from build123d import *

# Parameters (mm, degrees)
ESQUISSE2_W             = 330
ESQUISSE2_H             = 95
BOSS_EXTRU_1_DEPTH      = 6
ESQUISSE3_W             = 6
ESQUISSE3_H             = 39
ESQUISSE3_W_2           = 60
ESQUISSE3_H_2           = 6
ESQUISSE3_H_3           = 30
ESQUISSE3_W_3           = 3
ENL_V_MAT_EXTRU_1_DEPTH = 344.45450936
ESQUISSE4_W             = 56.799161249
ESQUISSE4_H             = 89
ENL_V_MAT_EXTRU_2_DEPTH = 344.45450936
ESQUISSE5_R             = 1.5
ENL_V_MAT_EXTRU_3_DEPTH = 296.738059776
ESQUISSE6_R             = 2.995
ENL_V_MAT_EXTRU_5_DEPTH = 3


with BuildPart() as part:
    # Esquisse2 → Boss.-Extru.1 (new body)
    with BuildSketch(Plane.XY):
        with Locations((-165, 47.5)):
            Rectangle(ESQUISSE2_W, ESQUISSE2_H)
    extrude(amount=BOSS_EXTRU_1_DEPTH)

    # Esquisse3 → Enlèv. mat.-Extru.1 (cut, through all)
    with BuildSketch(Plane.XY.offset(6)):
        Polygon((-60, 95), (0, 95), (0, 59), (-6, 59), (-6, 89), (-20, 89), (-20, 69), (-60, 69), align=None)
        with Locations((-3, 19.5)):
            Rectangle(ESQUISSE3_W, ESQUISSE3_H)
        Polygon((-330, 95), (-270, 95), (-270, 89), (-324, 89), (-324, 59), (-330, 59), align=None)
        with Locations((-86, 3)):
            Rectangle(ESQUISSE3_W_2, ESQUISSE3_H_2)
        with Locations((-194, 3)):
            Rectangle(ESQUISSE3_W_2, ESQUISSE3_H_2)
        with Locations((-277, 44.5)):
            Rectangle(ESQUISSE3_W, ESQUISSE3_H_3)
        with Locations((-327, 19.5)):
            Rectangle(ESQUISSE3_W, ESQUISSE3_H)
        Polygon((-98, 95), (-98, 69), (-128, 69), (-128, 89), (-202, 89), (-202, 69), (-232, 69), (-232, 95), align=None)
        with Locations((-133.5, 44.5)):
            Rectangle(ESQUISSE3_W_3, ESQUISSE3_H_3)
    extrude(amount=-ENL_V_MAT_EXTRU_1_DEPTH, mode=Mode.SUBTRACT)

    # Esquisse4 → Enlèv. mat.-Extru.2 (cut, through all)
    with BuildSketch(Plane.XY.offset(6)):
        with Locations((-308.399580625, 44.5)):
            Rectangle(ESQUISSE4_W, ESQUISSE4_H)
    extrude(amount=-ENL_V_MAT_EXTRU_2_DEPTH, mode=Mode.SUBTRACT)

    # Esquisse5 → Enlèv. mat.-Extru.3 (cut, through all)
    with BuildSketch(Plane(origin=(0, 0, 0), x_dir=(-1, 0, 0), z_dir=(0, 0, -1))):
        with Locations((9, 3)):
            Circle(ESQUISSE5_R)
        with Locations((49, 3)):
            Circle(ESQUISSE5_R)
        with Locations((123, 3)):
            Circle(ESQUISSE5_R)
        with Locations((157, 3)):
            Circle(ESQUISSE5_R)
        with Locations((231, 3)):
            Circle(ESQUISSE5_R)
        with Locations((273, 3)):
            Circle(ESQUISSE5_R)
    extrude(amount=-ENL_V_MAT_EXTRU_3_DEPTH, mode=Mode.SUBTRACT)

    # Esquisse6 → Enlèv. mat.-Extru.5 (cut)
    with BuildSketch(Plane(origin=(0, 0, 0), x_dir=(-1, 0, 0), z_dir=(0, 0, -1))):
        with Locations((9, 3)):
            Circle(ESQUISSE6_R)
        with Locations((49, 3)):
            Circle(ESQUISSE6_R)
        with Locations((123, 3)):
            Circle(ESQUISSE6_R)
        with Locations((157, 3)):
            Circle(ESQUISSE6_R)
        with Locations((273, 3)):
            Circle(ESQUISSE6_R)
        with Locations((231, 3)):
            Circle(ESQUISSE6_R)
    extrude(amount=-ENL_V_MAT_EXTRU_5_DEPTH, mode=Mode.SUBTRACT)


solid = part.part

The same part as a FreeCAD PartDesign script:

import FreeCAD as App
import Part
import Sketcher

V = App.Vector
Q = App.Units.Quantity

doc = App.newDocument("Part")
body = doc.addObject("PartDesign::Body", "Body")

# Sketch on XY plane
sketch1 = body.newObject("Sketcher::SketchObject", "Sketch")
sketch1.AttachmentSupport = (doc.getObject("XY_Plane"), [""])
sketch1.MapMode = "FlatFace"
sketch1.addGeometry([
    Part.LineSegment(V(-330, 95, 0), V(-330, 0, 0)),
    Part.LineSegment(V(-330, 0, 0), V(0, 0, 0)),
    Part.LineSegment(V(0, 0, 0), V(0, 95, 0)),
    Part.LineSegment(V(0, 95, 0), V(-330, 95, 0)),
], False)
sketch1.addConstraint([
    Sketcher.Constraint("Coincident", 0, 2, 1, 1),
    Sketcher.Constraint("Coincident", 1, 2, 2, 1),
    Sketcher.Constraint("Coincident", 2, 2, 3, 1),
    Sketcher.Constraint("Coincident", 3, 2, 0, 1),
    Sketcher.Constraint("Vertical", 0),
    Sketcher.Constraint("Horizontal", 1),
    Sketcher.Constraint("Vertical", 2),
    Sketcher.Constraint("Horizontal", 3),
    Sketcher.Constraint("Coincident", 1, 2, -1, 1),
    Sketcher.Constraint("DistanceX", 1, 1, 1, 2, Q("330 mm")),
    Sketcher.Constraint("DistanceY", 0, 2, 0, 1, Q("95 mm")),
])
pad1 = body.newObject("PartDesign::Pad", "Pad")
pad1.Profile = sketch1
pad1.Length = 6

# Sketch on XY plane
sketch2 = body.newObject("Sketcher::SketchObject", "Sketch001")
sketch2.AttachmentSupport = (doc.getObject("XY_Plane"), [""])
sketch2.MapMode = "FlatFace"
sketch2.AttachmentOffset = App.Placement(V(0, 0, 6), App.Rotation())
sketch2.addGeometry([
    Part.LineSegment(V(0, 95, 0), V(-60, 95, 0)),  # 0
    Part.LineSegment(V(-60, 95, 0), V(-60, 69, 0)),  # 1
    Part.LineSegment(V(-60, 69, 0), V(-20, 69, 0)),  # 2
    Part.LineSegment(V(-20, 69, 0), V(-20, 89, 0)),  # 3
    Part.LineSegment(V(-20, 89, 0), V(-6, 89, 0)),  # 4
    Part.LineSegment(V(-6, 89, 0), V(-6, 59, 0)),  # 5
    Part.LineSegment(V(-6, 59, 0), V(0, 59, 0)),  # 6
    Part.LineSegment(V(0, 59, 0), V(0, 95, 0)),  # 7
    Part.LineSegment(V(-6, 39, 0), V(-6, 0, 0)),  # 8
    Part.LineSegment(V(-6, 0, 0), V(0, 0, 0)),  # 9
    Part.LineSegment(V(0, 0, 0), V(0, 39, 0)),  # 10
    Part.LineSegment(V(0, 39, 0), V(-6, 39, 0)),  # 11
    Part.LineSegment(V(-270, 95, 0), V(-330, 95, 0)),  # 12
    Part.LineSegment(V(-330, 95, 0), V(-330, 59, 0)),  # 13
    Part.LineSegment(V(-330, 59, 0), V(-324, 59, 0)),  # 14
    Part.LineSegment(V(-324, 59, 0), V(-324, 89, 0)),  # 15
    Part.LineSegment(V(-324, 89, 0), V(-270, 89, 0)),  # 16
    Part.LineSegment(V(-270, 89, 0), V(-270, 95, 0)),  # 17
    Part.LineSegment(V(-116, 6, 0), V(-116, 0, 0)),  # 18
    Part.LineSegment(V(-116, 0, 0), V(-56, 0, 0)),  # 19
    Part.LineSegment(V(-56, 0, 0), V(-56, 6, 0)),  # 20
    Part.LineSegment(V(-56, 6, 0), V(-116, 6, 0)),  # 21
    Part.LineSegment(V(-224, 6, 0), V(-224, 0, 0)),  # 22
    Part.LineSegment(V(-224, 0, 0), V(-164, 0, 0)),  # 23
    Part.LineSegment(V(-164, 0, 0), V(-164, 6, 0)),  # 24
    Part.LineSegment(V(-164, 6, 0), V(-224, 6, 0)),  # 25
    Part.LineSegment(V(-280, 59.5, 0), V(-280, 29.5, 0)),  # 26
    Part.LineSegment(V(-280, 29.5, 0), V(-274, 29.5, 0)),  # 27
    Part.LineSegment(V(-274, 29.5, 0), V(-274, 59.5, 0)),  # 28
    Part.LineSegment(V(-274, 59.5, 0), V(-280, 59.5, 0)),  # 29
    Part.LineSegment(V(-330, 39, 0), V(-330, 0, 0)),  # 30
    Part.LineSegment(V(-330, 0, 0), V(-324, 0, 0)),  # 31
    Part.LineSegment(V(-324, 0, 0), V(-324, 39, 0)),  # 32
    Part.LineSegment(V(-324, 39, 0), V(-330, 39, 0)),  # 33
    Part.LineSegment(V(-98, 69, 0), V(-98, 95, 0)),  # 34
    Part.LineSegment(V(-98, 95, 0), V(-232, 95, 0)),  # 35
    Part.LineSegment(V(-232, 95, 0), V(-232, 69, 0)),  # 36
    Part.LineSegment(V(-232, 69, 0), V(-202, 69, 0)),  # 37
    Part.LineSegment(V(-202, 69, 0), V(-202, 89, 0)),  # 38
    Part.LineSegment(V(-202, 89, 0), V(-128, 89, 0)),  # 39
    Part.LineSegment(V(-128, 89, 0), V(-128, 69, 0)),  # 40
    Part.LineSegment(V(-128, 69, 0), V(-98, 69, 0)),  # 41
    Part.LineSegment(V(-135, 59.5, 0), V(-135, 29.5, 0)),  # 42
    Part.LineSegment(V(-135, 29.5, 0), V(-132, 29.5, 0)),  # 43
    Part.LineSegment(V(-132, 29.5, 0), V(-132, 59.5, 0)),  # 44
    Part.LineSegment(V(-132, 59.5, 0), V(-135, 59.5, 0)),  # 45
], False)
sketch2.addConstraint([
    Sketcher.Constraint("Coincident", 0, 2, 1, 1),
    Sketcher.Constraint("Coincident", 1, 2, 2, 1),
    Sketcher.Constraint("Coincident", 2, 2, 3, 1),
    Sketcher.Constraint("Coincident", 3, 2, 4, 1),
    Sketcher.Constraint("Coincident", 4, 2, 5, 1),
    Sketcher.Constraint("Coincident", 5, 2, 6, 1),
    Sketcher.Constraint("Coincident", 6, 2, 7, 1),
    Sketcher.Constraint("Coincident", 7, 2, 0, 1),
    Sketcher.Constraint("Coincident", 8, 2, 9, 1),
    Sketcher.Constraint("Coincident", 9, 2, 10, 1),
    Sketcher.Constraint("Coincident", 10, 2, 11, 1),
    Sketcher.Constraint("Coincident", 11, 2, 8, 1),
    Sketcher.Constraint("Coincident", 12, 2, 13, 1),
    Sketcher.Constraint("Coincident", 13, 2, 14, 1),
    Sketcher.Constraint("Coincident", 14, 2, 15, 1),
    Sketcher.Constraint("Coincident", 15, 2, 16, 1),
    Sketcher.Constraint("Coincident", 16, 2, 17, 1),
    Sketcher.Constraint("Coincident", 17, 2, 12, 1),
    Sketcher.Constraint("Coincident", 18, 2, 19, 1),
    Sketcher.Constraint("Coincident", 19, 2, 20, 1),
    Sketcher.Constraint("Coincident", 20, 2, 21, 1),
    Sketcher.Constraint("Coincident", 21, 2, 18, 1),
    Sketcher.Constraint("Coincident", 22, 2, 23, 1),
    Sketcher.Constraint("Coincident", 23, 2, 24, 1),
    Sketcher.Constraint("Coincident", 24, 2, 25, 1),
    Sketcher.Constraint("Coincident", 25, 2, 22, 1),
    Sketcher.Constraint("Coincident", 26, 2, 27, 1),
    Sketcher.Constraint("Coincident", 27, 2, 28, 1),
    Sketcher.Constraint("Coincident", 28, 2, 29, 1),
    Sketcher.Constraint("Coincident", 29, 2, 26, 1),
    Sketcher.Constraint("Coincident", 30, 2, 31, 1),
    Sketcher.Constraint("Coincident", 31, 2, 32, 1),
    Sketcher.Constraint("Coincident", 32, 2, 33, 1),
    Sketcher.Constraint("Coincident", 33, 2, 30, 1),
    Sketcher.Constraint("Coincident", 34, 2, 35, 1),
    Sketcher.Constraint("Coincident", 35, 2, 36, 1),
    Sketcher.Constraint("Coincident", 36, 2, 37, 1),
    Sketcher.Constraint("Coincident", 37, 2, 38, 1),
    Sketcher.Constraint("Coincident", 38, 2, 39, 1),
    Sketcher.Constraint("Coincident", 39, 2, 40, 1),
    Sketcher.Constraint("Coincident", 40, 2, 41, 1),
    Sketcher.Constraint("Coincident", 41, 2, 34, 1),
    Sketcher.Constraint("Coincident", 42, 2, 43, 1),
    Sketcher.Constraint("Coincident", 43, 2, 44, 1),
    Sketcher.Constraint("Coincident", 44, 2, 45, 1),
    Sketcher.Constraint("Coincident", 45, 2, 42, 1),
    Sketcher.Constraint("Horizontal", 0),
    Sketcher.Constraint("Vertical", 1),
    Sketcher.Constraint("Horizontal", 2),
    Sketcher.Constraint("Vertical", 3),
    Sketcher.Constraint("Horizontal", 4),
    Sketcher.Constraint("Vertical", 5),
    Sketcher.Constraint("Horizontal", 6),
    Sketcher.Constraint("Vertical", 7),
    Sketcher.Constraint("Vertical", 8),
    Sketcher.Constraint("Horizontal", 9),
    Sketcher.Constraint("Vertical", 10),
    Sketcher.Constraint("Horizontal", 11),
    Sketcher.Constraint("Horizontal", 12),
    Sketcher.Constraint("Vertical", 13),
    Sketcher.Constraint("Horizontal", 14),
    Sketcher.Constraint("Vertical", 15),
    Sketcher.Constraint("Horizontal", 16),
    Sketcher.Constraint("Vertical", 17),
    Sketcher.Constraint("Vertical", 18),
    Sketcher.Constraint("Horizontal", 19),
    Sketcher.Constraint("Vertical", 20),
    Sketcher.Constraint("Horizontal", 21),
    Sketcher.Constraint("Vertical", 22),
    Sketcher.Constraint("Horizontal", 23),
    Sketcher.Constraint("Vertical", 24),
    Sketcher.Constraint("Horizontal", 25),
    Sketcher.Constraint("Vertical", 26),
    Sketcher.Constraint("Horizontal", 27),
    Sketcher.Constraint("Vertical", 28),
    Sketcher.Constraint("Horizontal", 29),
    Sketcher.Constraint("Vertical", 30),
    Sketcher.Constraint("Horizontal", 31),
    Sketcher.Constraint("Vertical", 32),
    Sketcher.Constraint("Horizontal", 33),
    Sketcher.Constraint("Vertical", 34),
    Sketcher.Constraint("Horizontal", 35),
    Sketcher.Constraint("Vertical", 36),
    Sketcher.Constraint("Horizontal", 37),
    Sketcher.Constraint("Vertical", 38),
    Sketcher.Constraint("Horizontal", 39),
    Sketcher.Constraint("Vertical", 40),
    Sketcher.Constraint("Horizontal", 41),
    Sketcher.Constraint("Vertical", 42),
    Sketcher.Constraint("Horizontal", 43),
    Sketcher.Constraint("Vertical", 44),
    Sketcher.Constraint("Horizontal", 45),
    Sketcher.Constraint("Coincident", 9, 2, -1, 1),
    Sketcher.Constraint("PointOnObject", 6, 2, -2),
    Sketcher.Constraint("PointOnObject", 18, 2, -1),
    Sketcher.Constraint("PointOnObject", 22, 2, -1),
    Sketcher.Constraint("PointOnObject", 30, 2, -1),
    Sketcher.Constraint("Horizontal", 7, 2, 12, 2),
    Sketcher.Constraint("Horizontal", 6, 2, 13, 2),
    Sketcher.Constraint("Horizontal", 4, 2, 15, 2),
    Sketcher.Constraint("Horizontal", 21, 2, 24, 2),
    Sketcher.Constraint("Horizontal", 11, 2, 32, 2),
    Sketcher.Constraint("Horizontal", 17, 2, 34, 2),
    Sketcher.Constraint("Horizontal", 2, 2, 36, 2),
    Sketcher.Constraint("Horizontal", 16, 2, 38, 2),
    Sketcher.Constraint("Horizontal", 37, 2, 40, 2),
    Sketcher.Constraint("Horizontal", 27, 2, 42, 2),
    Sketcher.Constraint("Horizontal", 29, 2, 44, 2),
    Sketcher.Constraint("Vertical", 5, 2, 8, 2),
    Sketcher.Constraint("Vertical", 13, 2, 30, 2),
    Sketcher.Constraint("Vertical", 15, 2, 31, 2),
    Sketcher.Constraint("Equal", 0, 12),
    Sketcher.Constraint("Equal", 11, 14),
    Sketcher.Constraint("Equal", 12, 19),
    Sketcher.Constraint("Equal", 21, 23),
    Sketcher.Constraint("Equal", 14, 27),
    Sketcher.Constraint("Equal", 37, 41),
    Sketcher.Constraint("Equal", 41, 5),
    Sketcher.Constraint("Equal", 33, 17),
    Sketcher.Constraint("Equal", 17, 18),
    Sketcher.Constraint("Equal", 15, 26),
    Sketcher.Constraint("DistanceX", 0, 2, 0, 1, Q("60 mm")),
    Sketcher.Constraint("DistanceX", 2, 1, 2, 2, Q("40 mm")),
    Sketcher.Constraint("DistanceX", 4, 1, 4, 2, Q("14 mm")),
    Sketcher.Constraint("DistanceX", 35, 2, 35, 1, Q("134 mm")),
    Sketcher.Constraint("DistanceX", 37, 1, 37, 2, Q("30 mm")),
    Sketcher.Constraint("DistanceX", 43, 1, 43, 2, Q("3 mm")),
    Sketcher.Constraint("DistanceY", 1, 2, 1, 1, Q("26 mm")),
    Sketcher.Constraint("DistanceY", 8, 2, 8, 1, Q("39 mm")),
    Sketcher.Constraint("DistanceY", -1, 1, 0, 2, Q("95 mm")),
    Sketcher.Constraint("DistanceX", 12, 2, -1, 1, Q("330 mm")),
    Sketcher.Constraint("DistanceX", 18, 2, -1, 1, Q("116 mm")),
    Sketcher.Constraint("DistanceX", 22, 2, -1, 1, Q("224 mm")),
    Sketcher.Constraint("DistanceX", 26, 2, -1, 1, Q("280 mm")),
    Sketcher.Constraint("DistanceX", 34, 2, -1, 1, Q("98 mm")),
    Sketcher.Constraint("DistanceX", 42, 2, -1, 1, Q("135 mm")),
    Sketcher.Constraint("DistanceY", -1, 1, 26, 2, Q("29.5 mm")),
])
pocket1 = body.newObject("PartDesign::Pocket", "Pocket")
pocket1.Profile = sketch2
pocket1.Type = "ThroughAll"

# Sketch on XY plane
sketch3 = body.newObject("Sketcher::SketchObject", "Sketch002")
sketch3.AttachmentSupport = (doc.getObject("XY_Plane"), [""])
sketch3.MapMode = "FlatFace"
sketch3.AttachmentOffset = App.Placement(V(0, 0, 6), App.Rotation())
sketch3.addGeometry([
    Part.LineSegment(V(-336.799161, 89, 0), V(-336.799161, 0, 0)),
    Part.LineSegment(V(-336.799161, 0, 0), V(-280, 0, 0)),
    Part.LineSegment(V(-280, 0, 0), V(-280, 89, 0)),
    Part.LineSegment(V(-280, 89, 0), V(-336.799161, 89, 0)),
], False)
sketch3.addConstraint([
    Sketcher.Constraint("Coincident", 0, 2, 1, 1),
    Sketcher.Constraint("Coincident", 1, 2, 2, 1),
    Sketcher.Constraint("Coincident", 2, 2, 3, 1),
    Sketcher.Constraint("Coincident", 3, 2, 0, 1),
    Sketcher.Constraint("Vertical", 0),
    Sketcher.Constraint("Horizontal", 1),
    Sketcher.Constraint("Vertical", 2),
    Sketcher.Constraint("Horizontal", 3),
    Sketcher.Constraint("PointOnObject", 0, 2, -1),
    Sketcher.Constraint("DistanceY", 0, 2, 0, 1, Q("89 mm")),
    Sketcher.Constraint("DistanceX", 1, 2, -1, 1, Q("280 mm")),
    Sketcher.Constraint("DistanceX", 1, 1, 1, 2, Q("56.799161 mm")),
])
pocket2 = body.newObject("PartDesign::Pocket", "Pocket001")
pocket2.Profile = sketch3
pocket2.Type = "ThroughAll"

# Sketch on XY plane
sketch4 = body.newObject("Sketcher::SketchObject", "Sketch003")
sketch4.AttachmentSupport = (doc.getObject("XY_Plane"), [""])
sketch4.MapMode = "FlatFace"
sketch4.addGeometry([
    Part.Circle(V(-9, 3, 0), V(0, 0, 1), 1.5),  # 0
    Part.Circle(V(-49, 3, 0), V(0, 0, 1), 1.5),  # 1
    Part.Circle(V(-123, 3, 0), V(0, 0, 1), 1.5),  # 2
    Part.Circle(V(-157, 3, 0), V(0, 0, 1), 1.5),  # 3
    Part.Circle(V(-231, 3, 0), V(0, 0, 1), 1.5),  # 4
    Part.Circle(V(-273, 3, 0), V(0, 0, 1), 1.5),  # 5
], False)
sketch4.addConstraint([
    Sketcher.Constraint("Equal", 0, 1),
    Sketcher.Constraint("Equal", 1, 2),
    Sketcher.Constraint("Equal", 2, 3),
    Sketcher.Constraint("Equal", 3, 4),
    Sketcher.Constraint("Equal", 4, 5),
    Sketcher.Constraint("Horizontal", 0, 3, 1, 3),
    Sketcher.Constraint("Horizontal", 1, 3, 2, 3),
    Sketcher.Constraint("Horizontal", 2, 3, 3, 3),
    Sketcher.Constraint("Horizontal", 3, 3, 4, 3),
    Sketcher.Constraint("Horizontal", 4, 3, 5, 3),
    Sketcher.Constraint("Diameter", 0, Q("3 mm")),
    Sketcher.Constraint("DistanceX", 0, 3, -1, 1, Q("9 mm")),
    Sketcher.Constraint("DistanceY", -1, 1, 0, 3, Q("3 mm")),
    Sketcher.Constraint("DistanceX", 1, 3, -1, 1, Q("49 mm")),
    Sketcher.Constraint("DistanceX", 2, 3, -1, 1, Q("123 mm")),
    Sketcher.Constraint("DistanceX", 3, 3, -1, 1, Q("157 mm")),
    Sketcher.Constraint("DistanceX", 4, 3, -1, 1, Q("231 mm")),
    Sketcher.Constraint("DistanceX", 5, 3, -1, 1, Q("273 mm")),
])
pocket3 = body.newObject("PartDesign::Pocket", "Pocket002")
pocket3.Profile = sketch4
pocket3.Type = "ThroughAll"
pocket3.Reversed = True

# Sketch on XY plane
sketch5 = body.newObject("Sketcher::SketchObject", "Sketch004")
sketch5.AttachmentSupport = (doc.getObject("XY_Plane"), [""])
sketch5.MapMode = "FlatFace"
sketch5.addGeometry([
    Part.Circle(V(-9, 3, 0), V(0, 0, 1), 2.995),  # 0
    Part.Circle(V(-49, 3, 0), V(0, 0, 1), 2.995),  # 1
    Part.Circle(V(-123, 3, 0), V(0, 0, 1), 2.995),  # 2
    Part.Circle(V(-157, 3, 0), V(0, 0, 1), 2.995),  # 3
    Part.Circle(V(-273, 3, 0), V(0, 0, 1), 2.995),  # 4
    Part.Circle(V(-231, 3, 0), V(0, 0, 1), 2.995),  # 5
], False)
sketch5.addConstraint([
    Sketcher.Constraint("Equal", 0, 1),
    Sketcher.Constraint("Equal", 1, 2),
    Sketcher.Constraint("Equal", 2, 3),
    Sketcher.Constraint("Equal", 3, 4),
    Sketcher.Constraint("Equal", 4, 5),
    Sketcher.Constraint("Horizontal", 0, 3, 1, 3),
    Sketcher.Constraint("Horizontal", 1, 3, 2, 3),
    Sketcher.Constraint("Horizontal", 2, 3, 3, 3),
    Sketcher.Constraint("Horizontal", 3, 3, 4, 3),
    Sketcher.Constraint("Horizontal", 4, 3, 5, 3),
    Sketcher.Constraint("Diameter", 0, Q("5.99 mm")),
    Sketcher.Constraint("DistanceX", 0, 3, -1, 1, Q("9 mm")),
    Sketcher.Constraint("DistanceY", -1, 1, 0, 3, Q("3 mm")),
    Sketcher.Constraint("DistanceX", 1, 3, -1, 1, Q("49 mm")),
    Sketcher.Constraint("DistanceX", 2, 3, -1, 1, Q("123 mm")),
    Sketcher.Constraint("DistanceX", 3, 3, -1, 1, Q("157 mm")),
    Sketcher.Constraint("DistanceX", 4, 3, -1, 1, Q("273 mm")),
    Sketcher.Constraint("DistanceX", 5, 3, -1, 1, Q("231 mm")),
])
pocket4 = body.newObject("PartDesign::Pocket", "Pocket003")
pocket4.Profile = sketch5
pocket4.Length = 3
pocket4.Reversed = True

doc.recompute()
